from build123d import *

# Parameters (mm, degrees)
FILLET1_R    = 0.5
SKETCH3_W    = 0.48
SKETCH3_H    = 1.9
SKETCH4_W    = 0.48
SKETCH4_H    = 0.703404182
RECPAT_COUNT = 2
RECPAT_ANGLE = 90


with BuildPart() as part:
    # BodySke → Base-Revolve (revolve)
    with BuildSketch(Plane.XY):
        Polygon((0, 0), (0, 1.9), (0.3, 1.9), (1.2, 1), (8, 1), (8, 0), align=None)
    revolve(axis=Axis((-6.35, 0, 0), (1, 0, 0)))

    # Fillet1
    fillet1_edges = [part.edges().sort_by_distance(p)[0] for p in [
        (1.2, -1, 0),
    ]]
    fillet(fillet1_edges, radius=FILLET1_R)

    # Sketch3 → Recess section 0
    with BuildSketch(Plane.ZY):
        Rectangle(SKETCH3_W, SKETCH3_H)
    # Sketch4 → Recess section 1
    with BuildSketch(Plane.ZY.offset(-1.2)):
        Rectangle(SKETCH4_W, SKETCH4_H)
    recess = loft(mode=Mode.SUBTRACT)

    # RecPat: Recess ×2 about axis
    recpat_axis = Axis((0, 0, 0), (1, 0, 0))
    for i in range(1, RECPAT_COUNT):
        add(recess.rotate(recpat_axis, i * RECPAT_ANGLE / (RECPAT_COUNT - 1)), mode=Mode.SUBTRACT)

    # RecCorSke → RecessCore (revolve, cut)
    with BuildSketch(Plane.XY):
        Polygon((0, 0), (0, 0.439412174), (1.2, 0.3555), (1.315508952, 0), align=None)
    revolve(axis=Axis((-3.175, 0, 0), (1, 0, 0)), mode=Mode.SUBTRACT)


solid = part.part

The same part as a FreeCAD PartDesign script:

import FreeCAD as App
import Part
import Sketcher

V = App.Vector
Q = App.Units.Quantity


def edges_at(feature, points):
    """Names of the edges that pass closest to the given points."""
    edges = feature.Shape.Edges
    near = lambda p: min(range(len(edges)), key=lambda i: edges[i].distToShape(Part.Vertex(*p))[0])
    return sorted({f"Edge{near(p) + 1}" for p in points})

doc = App.newDocument("Part")
params = doc.addObject("Spreadsheet::Sheet", "Params")
for row, (alias, value) in enumerate([
    ("sketch1_width", "8 mm"),
    ("sketch1_height", "1 mm"),
    ("sketch1_width2", "6.8 mm"),
    ("sketch1_width3", "0.3 mm"),
    ("revolution_angle", "360 deg"),
    ("fillet_radius", "0.5 mm"),
    ("sketch2_width", "1.9 mm"),
    ("sketch2_height", "0.48 mm"),
    ("sketch3_height", "0.48 mm"),
    ("groove_angle", "360 deg"),
], start=1):
    params.set(f"A{row}", alias)
    params.set(f"B{row}", "=" + value)
    params.setAlias(f"B{row}", alias)

body = doc.addObject("PartDesign::Body", "Body")

# Sketch on XY plane
sketch1 = body.newObject("Sketcher::SketchObject", "Sketch")
sketch1.AttachmentSupport = (doc.getObject("XY_Plane"), [""])
sketch1.MapMode = "FlatFace"
sketch1.addGeometry(Part.LineSegment(V(0, 1.9, 0), V(0, 0, 0)), False)
sketch1.addGeometry(Part.LineSegment(V(0, 0, 0), V(8, 0, 0)), False)
sketch1.addGeometry(Part.LineSegment(V(8, 0, 0), V(8, 1, 0)), False)
sketch1.addGeometry(Part.LineSegment(V(8, 1, 0), V(1.2, 1, 0)), False)
sketch1.addGeometry(Part.LineSegment(V(1.2, 1, 0), V(0.3, 1.9, 0)), False)
sketch1.addGeometry(Part.LineSegment(V(0.3, 1.9, 0), V(0, 1.9, 0)), False)
sketch1.addConstraint(Sketcher.Constraint("Coincident", 0, 2, 1, 1))
sketch1.addConstraint(Sketcher.Constraint("Coincident", 1, 2, 2, 1))
sketch1.addConstraint(Sketcher.Constraint("Coincident", 2, 2, 3, 1))
sketch1.addConstraint(Sketcher.Constraint("Coincident", 3, 2, 4, 1))
sketch1.addConstraint(Sketcher.Constraint("Coincident", 4, 2, 5, 1))
sketch1.addConstraint(Sketcher.Constraint("Coincident", 5, 2, 0, 1))
sketch1.addConstraint(Sketcher.Constraint("Vertical", 0))
sketch1.addConstraint(Sketcher.Constraint("Horizontal", 1))
sketch1.addConstraint(Sketcher.Constraint("Vertical", 2))
sketch1.addConstraint(Sketcher.Constraint("Horizontal", 3))
sketch1.addConstraint(Sketcher.Constraint("Horizontal", 5))
sketch1.addConstraint(Sketcher.Constraint("Coincident", 0, 2, -1, 1))
sketch1.addConstraint(Sketcher.Constraint("DistanceX", 1, 1, 1, 2, Q("8 mm")))
sketch1.addConstraint(Sketcher.Constraint("DistanceY", 2, 1, 2, 2, Q("1 mm")))
sketch1.addConstraint(Sketcher.Constraint("Angle", 4, Q("135 deg")))
sketch1.addConstraint(Sketcher.Constraint("DistanceX", 3, 2, 3, 1, Q("6.8 mm")))
sketch1.addConstraint(Sketcher.Constraint("DistanceX", 5, 2, 5, 1, Q("0.3 mm")))
sketch1.setExpression("Constraints[12]", "Params.sketch1_width")
sketch1.setExpression("Constraints[13]", "Params.sketch1_height")
sketch1.setExpression("Constraints[15]", "Params.sketch1_width2")
sketch1.setExpression("Constraints[16]", "Params.sketch1_width3")
revolution = body.newObject("PartDesign::Revolution", "Revolution")
revolution.Profile = sketch1
revolution.ReferenceAxis = (sketch1, ["H_Axis"])
revolution.setExpression("Angle", "Params.revolution_angle")
doc.recompute()

fillet = body.newObject("PartDesign::Fillet", "Fillet")
fillet.Base = (revolution, edges_at(revolution, [(1.2, -1, 0)]))
fillet.setExpression("Radius", "Params.fillet_radius")

# Sketch on YZ plane
sketch2 = body.newObject("Sketcher::SketchObject", "Sketch001")
sketch2.AttachmentSupport = (doc.getObject("YZ_Plane"), [""])
sketch2.MapMode = "FlatFace"
sketch2.addGeometry(Part.LineSegment(V(0.95, -0.24, 0), V(-0.95, -0.24, 0)), False)
sketch2.addGeometry(Part.LineSegment(V(-0.95, -0.24, 0), V(-0.95, 0.24, 0)), False)
sketch2.addGeometry(Part.LineSegment(V(-0.95, 0.24, 0), V(0.95, 0.24, 0)), False)
sketch2.addGeometry(Part.LineSegment(V(0.95, 0.24, 0), V(0.95, -0.24, 0)), False)
sketch2.addConstraint(Sketcher.Constraint("Coincident", 0, 2, 1, 1))
sketch2.addConstraint(Sketcher.Constraint("Coincident", 1, 2, 2, 1))
sketch2.addConstraint(Sketcher.Constraint("Coincident", 2, 2, 3, 1))
sketch2.addConstraint(Sketcher.Constraint("Coincident", 3, 2, 0, 1))
sketch2.addConstraint(Sketcher.Constraint("Horizontal", 0))
sketch2.addConstraint(Sketcher.Constraint("Vertical", 1))
sketch2.addConstraint(Sketcher.Constraint("Horizontal", 2))
sketch2.addConstraint(Sketcher.Constraint("Vertical", 3))
sketch2.addConstraint(Sketcher.Constraint("Symmetric", 0, 2, 2, 2, -1, 1))
sketch2.addConstraint(Sketcher.Constraint("DistanceX", 0, 2, 0, 1, Q("1.9 mm")))
sketch2.addConstraint(Sketcher.Constraint("DistanceY", 1, 1, 1, 2, Q("0.48 mm")))
sketch2.setExpression("Constraints[9]", "Params.sketch2_width")
sketch2.setExpression("Constraints[10]", "Params.sketch2_height")

# Sketch on YZ plane
sketch3 = body.newObject("Sketcher::SketchObject", "Sketch002")
sketch3.AttachmentSupport = (doc.getObject("YZ_Plane"), [""])
sketch3.MapMode = "FlatFace"
sketch3.AttachmentOffset = App.Placement(V(0, 0, 1.2), App.Rotation())
sketch3.addGeometry(Part.LineSegment(V(0.35, -0.24, 0), V(-0.35, -0.24, 0)), False)
sketch3.addGeometry(Part.LineSegment(V(-0.35, -0.24, 0), V(-0.35, 0.24, 0)), False)
sketch3.addGeometry(Part.LineSegment(V(-0.35, 0.24, 0), V(0.35, 0.24, 0)), False)
sketch3.addGeometry(Part.LineSegment(V(0.35, 0.24, 0), V(0.35, -0.24, 0)), False)
sketch3.addConstraint(Sketcher.Constraint("Coincident", 0, 2, 1, 1))
sketch3.addConstraint(Sketcher.Constraint("Coincident", 1, 2, 2, 1))
sketch3.addConstraint(Sketcher.Constraint("Coincident", 2, 2, 3, 1))
sketch3.addConstraint(Sketcher.Constraint("Coincident", 3, 2, 0, 1))
sketch3.addConstraint(Sketcher.Constraint("Horizontal", 0))
sketch3.addConstraint(Sketcher.Constraint("Vertical", 1))
sketch3.addConstraint(Sketcher.Constraint("Horizontal", 2))
sketch3.addConstraint(Sketcher.Constraint("Vertical", 3))
sketch3.addConstraint(Sketcher.Constraint("Symmetric", 0, 2, 2, 2, -1, 1))
sketch3.addConstraint(Sketcher.Constraint("DistanceY", 1, 1, 1, 2, Q("0.48 mm")))
sketch3.addConstraint(Sketcher.Constraint("DistanceX", 0, 2, 0, 1, Q("0.703404 mm")))
sketch3.setExpression("Constraints[9]", "Params.sketch3_height")

subtractiveloft = body.newObject("PartDesign::SubtractiveLoft", "SubtractiveLoft")
subtractiveloft.Profile = sketch2
subtractiveloft.Sections = [sketch3]
doc.recompute()

polarpattern = body.newObject("PartDesign::PolarPattern", "PolarPattern")
polarpattern.Originals = [subtractiveloft]
polarpattern.Axis = (doc.getObject("X_Axis"), [""])
polarpattern.Angle = 90
polarpattern.Occurrences = 2
body.Tip = polarpattern

# Sketch on XY plane
sketch4 = body.newObject("Sketcher::SketchObject", "Sketch003")
sketch4.AttachmentSupport = (doc.getObject("XY_Plane"), [""])
sketch4.MapMode = "FlatFace"
sketch4.addGeometry(Part.LineSegment(V(0, 0.44, 0), V(0, 0, 0)), False)
sketch4.addGeometry(Part.LineSegment(V(0, 0, 0), V(1.32, 0, 0)), False)
sketch4.addGeometry(Part.LineSegment(V(1.32, 0, 0), V(1.2, 0.36, 0)), False)
sketch4.addGeometry(Part.LineSegment(V(1.2, 0.36, 0), V(0, 0.44, 0)), False)
sketch4.addConstraint(Sketcher.Constraint("Coincident", 0, 2, 1, 1))
sketch4.addConstraint(Sketcher.Constraint("Coincident", 1, 2, 2, 1))
sketch4.addConstraint(Sketcher.Constraint("Coincident", 2, 2, 3, 1))
sketch4.addConstraint(Sketcher.Constraint("Coincident", 3, 2, 0, 1))
sketch4.addConstraint(Sketcher.Constraint("Vertical", 0))
sketch4.addConstraint(Sketcher.Constraint("Horizontal", 1))
sketch4.addConstraint(Sketcher.Constraint("Coincident", 0, 2, -1, 1))
sketch4.addConstraint(Sketcher.Constraint("Angle", 2, Q("108 deg")))
sketch4.addConstraint(Sketcher.Constraint("Angle", 3, Q("176 deg")))
sketch4.addConstraint(Sketcher.Constraint("DistanceX", -1, 1, 2, 2, Q("1.2 mm")))
sketch4.addConstraint(Sketcher.Constraint("DistanceX", 1, 1, 1, 2, Q("1.315509 mm")))
groove = body.newObject("PartDesign::Groove", "Groove")
groove.Profile = sketch4
groove.ReferenceAxis = (sketch4, ["H_Axis"])
groove.setExpression("Angle", "Params.groove_angle")

doc.recompute()
